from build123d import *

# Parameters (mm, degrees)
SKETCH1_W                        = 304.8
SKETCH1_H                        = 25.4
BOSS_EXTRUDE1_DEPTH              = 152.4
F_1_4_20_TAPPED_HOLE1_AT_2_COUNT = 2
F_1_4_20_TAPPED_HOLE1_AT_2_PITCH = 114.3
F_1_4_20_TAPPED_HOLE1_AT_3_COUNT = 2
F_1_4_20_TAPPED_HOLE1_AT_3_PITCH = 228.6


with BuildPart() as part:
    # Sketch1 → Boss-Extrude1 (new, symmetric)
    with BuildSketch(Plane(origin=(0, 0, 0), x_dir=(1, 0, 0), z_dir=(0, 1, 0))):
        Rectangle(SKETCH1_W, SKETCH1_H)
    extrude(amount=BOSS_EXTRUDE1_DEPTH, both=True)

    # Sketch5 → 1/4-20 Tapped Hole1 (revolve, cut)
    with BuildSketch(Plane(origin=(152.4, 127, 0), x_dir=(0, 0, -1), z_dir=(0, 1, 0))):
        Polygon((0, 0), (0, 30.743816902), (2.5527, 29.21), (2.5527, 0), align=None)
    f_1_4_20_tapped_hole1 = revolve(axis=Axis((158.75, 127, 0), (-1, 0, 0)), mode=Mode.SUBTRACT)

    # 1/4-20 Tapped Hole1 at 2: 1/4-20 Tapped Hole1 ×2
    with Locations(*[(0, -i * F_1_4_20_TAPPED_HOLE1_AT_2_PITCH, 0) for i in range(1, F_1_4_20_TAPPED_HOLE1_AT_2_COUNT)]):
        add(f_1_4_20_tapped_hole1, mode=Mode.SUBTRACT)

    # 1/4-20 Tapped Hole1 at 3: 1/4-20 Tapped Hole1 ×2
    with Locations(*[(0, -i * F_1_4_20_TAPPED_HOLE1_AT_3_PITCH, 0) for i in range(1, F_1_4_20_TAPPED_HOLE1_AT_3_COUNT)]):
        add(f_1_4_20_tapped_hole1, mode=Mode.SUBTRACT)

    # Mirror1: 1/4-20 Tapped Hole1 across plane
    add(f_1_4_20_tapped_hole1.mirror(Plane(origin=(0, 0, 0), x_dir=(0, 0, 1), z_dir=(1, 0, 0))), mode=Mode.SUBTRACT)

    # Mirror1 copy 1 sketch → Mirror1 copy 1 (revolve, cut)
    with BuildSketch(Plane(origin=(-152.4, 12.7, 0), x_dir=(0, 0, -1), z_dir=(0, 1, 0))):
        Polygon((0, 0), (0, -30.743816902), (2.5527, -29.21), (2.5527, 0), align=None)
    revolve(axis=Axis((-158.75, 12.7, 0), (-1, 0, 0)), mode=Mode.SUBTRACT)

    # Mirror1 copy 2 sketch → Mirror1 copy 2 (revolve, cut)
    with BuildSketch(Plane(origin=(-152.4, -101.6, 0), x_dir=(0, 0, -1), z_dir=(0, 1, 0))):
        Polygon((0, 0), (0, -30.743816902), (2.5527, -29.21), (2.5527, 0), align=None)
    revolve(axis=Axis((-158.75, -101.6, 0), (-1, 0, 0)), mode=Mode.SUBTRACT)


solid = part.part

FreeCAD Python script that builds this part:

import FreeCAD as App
import Part
import Sketcher

V = App.Vector
Q = App.Units.Quantity

doc = App.newDocument("Part")
params = doc.addObject("Spreadsheet::Sheet", "Params")
for row, (alias, value) in enumerate([
    ("sketch1_width", "12 in"),
    ("sketch1_height", "1 in"),
    ("pad1_length", "12 in"),
    ("sketch2_width", "1.15 in"),
    ("groove_angle", "360 deg"),
    ("linearpattern_pitch", "4.5 in"),
    ("linearpattern2_pitch", "9 in"),
    ("sketch3_width", "1.15 in"),
    ("groove2_angle", "360 deg"),
    ("sketch4_width", "1.15 in"),
    ("groove3_angle", "360 deg"),
], start=1):
    params.set(f"A{row}", alias)
    params.set(f"B{row}", "=" + value)
    params.setAlias(f"B{row}", alias)

body = doc.addObject("PartDesign::Body", "Body")

# Sketch on XZ plane
sketch1 = body.newObject("Sketcher::SketchObject", "Sketch")
sketch1.AttachmentSupport = (doc.getObject("XZ_Plane"), [""])
sketch1.MapMode = "FlatFace"
sketch1.addGeometry([
    Part.LineSegment(V(-152, -13, 0), V(-152, 13, 0)),
    Part.LineSegment(V(-152, 13, 0), V(152, 13, 0)),
    Part.LineSegment(V(152, 13, 0), V(152, -13, 0)),
    Part.LineSegment(V(152, -13, 0), V(-152, -13, 0)),
], False)
sketch1.addConstraint([
    Sketcher.Constraint("Coincident", 0, 2, 1, 1),
    Sketcher.Constraint("Coincident", 1, 2, 2, 1),
    Sketcher.Constraint("Coincident", 2, 2, 3, 1),
    Sketcher.Constraint("Coincident", 3, 2, 0, 1),
    Sketcher.Constraint("Vertical", 0),
    Sketcher.Constraint("Horizontal", 1),
    Sketcher.Constraint("Vertical", 2),
    Sketcher.Constraint("Horizontal", 3),
    Sketcher.Constraint("Symmetric", 0, 2, 2, 2, -1, 1),
    Sketcher.Constraint("DistanceX", 1, 1, 1, 2, Q("12 in")),
    Sketcher.Constraint("DistanceY", 0, 1, 0, 2, Q("1 in")),
])
sketch1.setExpression("Constraints[9]", "Params.sketch1_width")
sketch1.setExpression("Constraints[10]", "Params.sketch1_height")
pad1 = body.newObject("PartDesign::Pad", "Pad")
pad1.Profile = sketch1
pad1.setExpression("Length", "Params.pad1_length")
pad1.Midplane = True

# Sketch on XZ plane
sketch2 = body.newObject("Sketcher::SketchObject", "Sketch001")
sketch2.AttachmentSupport = (doc.getObject("XZ_Plane"), [""])
sketch2.MapMode = "FlatFace"
sketch2.AttachmentOffset = App.Placement(V(0, 0, -5 * 25.4), App.Rotation())
sketch2.addGeometry([
    Part.LineSegment(V(121.7, 0, 0), V(152.4, 0, 0)),
    Part.LineSegment(V(152.4, 0, 0), V(152.4, -2.6, 0)),
    Part.LineSegment(V(152.4, -2.6, 0), V(123.2, -2.6, 0)),
    Part.LineSegment(V(123.2, -2.6, 0), V(121.7, 0, 0)),
], False)
sketch2.addConstraint([
    Sketcher.Constraint("Coincident", 0, 2, 1, 1),
    Sketcher.Constraint("Coincident", 1, 2, 2, 1),
    Sketcher.Constraint("Coincident", 2, 2, 3, 1),
    Sketcher.Constraint("Coincident", 3, 2, 0, 1),
    Sketcher.Constraint("Horizontal", 0),
    Sketcher.Constraint("Vertical", 1),
    Sketcher.Constraint("Horizontal", 2),
    Sketcher.Constraint("PointOnObject", 0, 2, -1),
    Sketcher.Constraint("DistanceX", -1, 1, 0, 2, Q("6 in")),
    Sketcher.Constraint("Angle", 3, Q("121 deg")),
    Sketcher.Constraint("DistanceX", 2, 2, 2, 1, Q("1.15 in")),
    Sketcher.Constraint("DistanceY", 1, 2, 1, 1, Q("0.1005 in")),
])
sketch2.setExpression("Constraints[10]", "Params.sketch2_width")
groove = body.newObject("PartDesign::Groove", "Groove")
groove.Profile = sketch2
groove.ReferenceAxis = (sketch2, ["H_Axis"])
groove.setExpression("Angle", "Params.groove_angle")
doc.recompute()

linearpattern = body.newObject("PartDesign::LinearPattern", "LinearPattern")
linearpattern.Originals = [groove]
linearpattern.Direction = (doc.getObject("Y_Axis"), [""])
linearpattern.Mode = "offset"
linearpattern.setExpression("Offset", "Params.linearpattern_pitch")
linearpattern.Occurrences = 2
linearpattern.Reversed = True
body.Tip = linearpattern
doc.recompute()

linearpattern2 = body.newObject("PartDesign::LinearPattern", "LinearPattern001")
linearpattern2.Originals = [groove]
linearpattern2.Direction = (doc.getObject("Y_Axis"), [""])
linearpattern2.Mode = "offset"
linearpattern2.setExpression("Offset", "Params.linearpattern2_pitch")
linearpattern2.Occurrences = 2
linearpattern2.Reversed = True
body.Tip = linearpattern2
doc.recompute()

mirrored = body.newObject("PartDesign::Mirrored", "Mirrored")
mirrored.Originals = [groove]
mirrored.MirrorPlane = (doc.getObject("YZ_Plane"), [""])
body.Tip = mirrored

# Sketch on XZ plane
sketch3 = body.newObject("Sketcher::SketchObject", "Sketch002")
sketch3.AttachmentSupport = (doc.getObject("XZ_Plane"), [""])
sketch3.MapMode = "FlatFace"
sketch3.AttachmentOffset = App.Placement(V(0, 0, -0.5 * 25.4), App.Rotation())
sketch3.addGeometry([
    Part.LineSegment(V(-152.4, 0, 0), V(-121.7, 0, 0)),
    Part.LineSegment(V(-121.7, 0, 0), V(-123.2, -2.6, 0)),
    Part.LineSegment(V(-123.2, -2.6, 0), V(-152.4, -2.6, 0)),
    Part.LineSegment(V(-152.4, -2.6, 0), V(-152.4, 0, 0)),
], False)
sketch3.addConstraint([
    Sketcher.Constraint("Coincident", 0, 2, 1, 1),
    Sketcher.Constraint("Coincident", 1, 2, 2, 1),
    Sketcher.Constraint("Coincident", 2, 2, 3, 1),
    Sketcher.Constraint("Coincident", 3, 2, 0, 1),
    Sketcher.Constraint("Horizontal", 0),
    Sketcher.Constraint("Horizontal", 2),
    Sketcher.Constraint("Vertical", 3),
    Sketcher.Constraint("PointOnObject", 0, 2, -1),
    Sketcher.Constraint("DistanceX", 2, 2, -1, 1, Q("6 in")),
    Sketcher.Constraint("Angle", 1, Q("-121 deg")),
    Sketcher.Constraint("DistanceX", 2, 2, 2, 1, Q("1.15 in")),
    Sketcher.Constraint("DistanceY", 3, 1, 3, 2, Q("0.1005 in")),
])
sketch3.setExpression("Constraints[10]", "Params.sketch3_width")
groove2 = body.newObject("PartDesign::Groove", "Groove001")
groove2.Profile = sketch3
groove2.ReferenceAxis = (sketch3, ["H_Axis"])
groove2.setExpression("Angle", "Params.groove2_angle")

# Sketch on XZ plane
sketch4 = body.newObject("Sketcher::SketchObject", "Sketch003")
sketch4.AttachmentSupport = (doc.getObject("XZ_Plane"), [""])
sketch4.MapMode = "FlatFace"
sketch4.AttachmentOffset = App.Placement(V(0, 0, 4 * 25.4), App.Rotation())
sketch4.addGeometry([
    Part.LineSegment(V(-152.4, 0, 0), V(-121.7, 0, 0)),
    Part.LineSegment(V(-121.7, 0, 0), V(-123.2, -2.6, 0)),
    Part.LineSegment(V(-123.2, -2.6, 0), V(-152.4, -2.6, 0)),
    Part.LineSegment(V(-152.4, -2.6, 0), V(-152.4, 0, 0)),
], False)
sketch4.addConstraint([
    Sketcher.Constraint("Coincident", 0, 2, 1, 1),
    Sketcher.Constraint("Coincident", 1, 2, 2, 1),
    Sketcher.Constraint("Coincident", 2, 2, 3, 1),
    Sketcher.Constraint("Coincident", 3, 2, 0, 1),
    Sketcher.Constraint("Horizontal", 0),
    Sketcher.Constraint("Horizontal", 2),
    Sketcher.Constraint("Vertical", 3),
    Sketcher.Constraint("PointOnObject", 0, 2, -1),
    Sketcher.Constraint("DistanceX", 2, 2, -1, 1, Q("6 in")),
    Sketcher.Constraint("Angle", 1, Q("-121 deg")),
    Sketcher.Constraint("DistanceX", 2, 2, 2, 1, Q("1.15 in")),
    Sketcher.Constraint("DistanceY", 3, 1, 3, 2, Q("0.1005 in")),
])
sketch4.setExpression("Constraints[10]", "Params.sketch4_width")
groove3 = body.newObject("PartDesign::Groove", "Groove002")
groove3.Profile = sketch4
groove3.ReferenceAxis = (sketch4, ["H_Axis"])
groove3.setExpression("Angle", "Params.groove3_angle")

doc.recompute()
